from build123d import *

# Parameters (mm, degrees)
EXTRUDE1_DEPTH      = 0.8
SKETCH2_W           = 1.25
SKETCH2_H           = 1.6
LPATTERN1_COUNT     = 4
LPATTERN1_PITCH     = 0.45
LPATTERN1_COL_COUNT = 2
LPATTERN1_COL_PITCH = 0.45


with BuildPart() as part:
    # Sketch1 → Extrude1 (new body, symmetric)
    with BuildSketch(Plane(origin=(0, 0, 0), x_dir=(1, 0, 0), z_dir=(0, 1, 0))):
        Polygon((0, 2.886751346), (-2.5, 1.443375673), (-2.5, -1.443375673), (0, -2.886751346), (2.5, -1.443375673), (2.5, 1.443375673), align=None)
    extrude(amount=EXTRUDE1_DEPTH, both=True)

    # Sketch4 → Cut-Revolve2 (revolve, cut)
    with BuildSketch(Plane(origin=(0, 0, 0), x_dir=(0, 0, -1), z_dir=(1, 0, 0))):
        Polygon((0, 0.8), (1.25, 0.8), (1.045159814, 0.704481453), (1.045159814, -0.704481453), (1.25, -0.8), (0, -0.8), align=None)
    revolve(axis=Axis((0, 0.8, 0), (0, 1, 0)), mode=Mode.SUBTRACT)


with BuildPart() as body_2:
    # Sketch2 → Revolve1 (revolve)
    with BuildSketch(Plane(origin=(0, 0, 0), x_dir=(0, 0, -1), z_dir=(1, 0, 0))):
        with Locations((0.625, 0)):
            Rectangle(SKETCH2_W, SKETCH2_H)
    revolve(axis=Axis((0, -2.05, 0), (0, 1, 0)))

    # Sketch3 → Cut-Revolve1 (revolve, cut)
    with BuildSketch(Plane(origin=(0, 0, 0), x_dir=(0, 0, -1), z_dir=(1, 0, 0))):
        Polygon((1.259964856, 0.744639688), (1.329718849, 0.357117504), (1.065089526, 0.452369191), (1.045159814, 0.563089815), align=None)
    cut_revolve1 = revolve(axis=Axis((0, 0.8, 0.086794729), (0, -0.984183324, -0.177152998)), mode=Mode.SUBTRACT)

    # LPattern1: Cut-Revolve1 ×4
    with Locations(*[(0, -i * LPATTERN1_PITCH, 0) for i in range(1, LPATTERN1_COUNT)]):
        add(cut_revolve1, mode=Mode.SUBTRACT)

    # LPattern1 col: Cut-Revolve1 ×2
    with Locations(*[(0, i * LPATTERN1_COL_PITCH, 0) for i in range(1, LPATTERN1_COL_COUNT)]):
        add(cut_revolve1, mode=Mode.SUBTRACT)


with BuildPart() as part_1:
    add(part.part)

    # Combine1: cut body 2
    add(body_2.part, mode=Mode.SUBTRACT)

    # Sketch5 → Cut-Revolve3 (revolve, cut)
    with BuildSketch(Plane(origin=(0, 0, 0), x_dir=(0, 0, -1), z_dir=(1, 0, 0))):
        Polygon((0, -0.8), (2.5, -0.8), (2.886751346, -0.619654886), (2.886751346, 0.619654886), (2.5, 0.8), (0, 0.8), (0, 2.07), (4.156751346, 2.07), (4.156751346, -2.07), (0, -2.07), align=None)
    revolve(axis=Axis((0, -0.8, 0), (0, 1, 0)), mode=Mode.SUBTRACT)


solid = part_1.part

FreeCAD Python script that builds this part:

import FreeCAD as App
import Part
import Sketcher
from FreeCAD import Vector
Q = App.Units.Quantity

doc = App.newDocument("Part")
params = doc.addObject("Spreadsheet::Sheet", "Params")
for row, (alias, value) in enumerate([
    ("pad1_length", "1.6 mm"),
    ("sketch2_width", "1.6 mm"),
    ("sketch2_height", "1.25 mm"),
    ("groove_angle", "360 deg"),
    ("sketch3_width", "1.6 mm"),
    ("sketch3_height", "1.25 mm"),
    ("revolution_angle", "360 deg"),
    ("groove2_angle", "360 deg"),
    ("linearpattern_pitch", "0.45 mm"),
    ("linearpattern2_pitch", "0.45 mm"),
    ("sketch5_height", "2.5 mm"),
    ("sketch5_width", "1.27 mm"),
    ("sketch5_width2", "4.14 mm"),
    ("groove3_angle", "360 deg"),
], start=1):
    params.set(f"A{row}", alias)
    params.set(f"B{row}", "=" + value)
    params.setAlias(f"B{row}", alias)

body = doc.addObject("PartDesign::Body", "Body")

# Sketch on XZ plane
sketch1 = body.newObject("Sketcher::SketchObject", "Sketch")
sketch1.AttachmentSupport = (doc.getObject("XZ_Plane"), [""])
sketch1.MapMode = "FlatFace"
sketch1.addGeometry([
    Part.LineSegment(Vector(0, -2.886751, 0), Vector(-2.5, -1.443376, 0)),  # 0
    Part.LineSegment(Vector(-2.5, -1.443376, 0), Vector(-2.5, 1.443376, 0)),  # 1
    Part.LineSegment(Vector(-2.5, 1.443376, 0), Vector(0, 2.886751, 0)),  # 2
    Part.LineSegment(Vector(0, 2.886751, 0), Vector(2.5, 1.443376, 0)),  # 3
    Part.LineSegment(Vector(2.5, 1.443376, 0), Vector(2.5, -1.443376, 0)),  # 4
    Part.LineSegment(Vector(2.5, -1.443376, 0), Vector(0, -2.886751, 0)),  # 5
], False)
sketch1.addConstraint([
    Sketcher.Constraint("Coincident", 0, 2, 1, 1),
    Sketcher.Constraint("Coincident", 1, 2, 2, 1),
    Sketcher.Constraint("Coincident", 2, 2, 3, 1),
    Sketcher.Constraint("Coincident", 3, 2, 4, 1),
    Sketcher.Constraint("Coincident", 4, 2, 5, 1),
    Sketcher.Constraint("Coincident", 5, 2, 0, 1),
    Sketcher.Constraint("Vertical", 1),
    Sketcher.Constraint("Vertical", 4),
    Sketcher.Constraint("Symmetric", 0, 2, 3, 2, -1, 1),
    Sketcher.Constraint("Symmetric", 2, 2, 5, 2, -1, 1),
    Sketcher.Constraint("PointOnObject", 2, 2, -2),
    Sketcher.Constraint("Parallel", 2, 5),
    Sketcher.Constraint("Horizontal", 1, 2, 3, 2),
    Sketcher.Constraint("Angle", 0, Q("150 deg")),
    Sketcher.Constraint("DistanceX", 1, 2, 3, 2, Q("5 mm")),
    Sketcher.Constraint("DistanceY", 1, 1, 1, 2, Q("2.886751 mm")),
])
pad1 = body.newObject("PartDesign::Pad", "Pad")
pad1.Profile = sketch1
pad1.setExpression("Length", "Params.pad1_length")
pad1.Midplane = True

# Sketch on YZ plane
sketch2 = body.newObject("Sketcher::SketchObject", "Sketch001")
sketch2.AttachmentSupport = (doc.getObject("YZ_Plane"), [""])
sketch2.MapMode = "FlatFace"
sketch2.addGeometry([
    Part.LineSegment(Vector(0.8, -1.25, 0), Vector(0.8, 0, 0)),  # 0
    Part.LineSegment(Vector(0.8, 0, 0), Vector(-0.8, 0, 0)),  # 1
    Part.LineSegment(Vector(-0.8, 0, 0), Vector(-0.8, -1.25, 0)),  # 2
    Part.LineSegment(Vector(-0.8, -1.25, 0), Vector(-0.704481, -1.04516, 0)),  # 3
    Part.LineSegment(Vector(-0.704481, -1.04516, 0), Vector(0.704481, -1.04516, 0)),  # 4
    Part.LineSegment(Vector(0.704481, -1.04516, 0), Vector(0.8, -1.25, 0)),  # 5
], False)
sketch2.addConstraint([
    Sketcher.Constraint("Coincident", 0, 2, 1, 1),
    Sketcher.Constraint("Coincident", 1, 2, 2, 1),
    Sketcher.Constraint("Coincident", 2, 2, 3, 1),
    Sketcher.Constraint("Coincident", 3, 2, 4, 1),
    Sketcher.Constraint("Coincident", 4, 2, 5, 1),
    Sketcher.Constraint("Coincident", 5, 2, 0, 1),
    Sketcher.Constraint("Vertical", 0),
    Sketcher.Constraint("Horizontal", 1),
    Sketcher.Constraint("Vertical", 2),
    Sketcher.Constraint("Horizontal", 4),
    Sketcher.Constraint("Symmetric", 0, 2, 1, 2, -1, 1),
    Sketcher.Constraint("Horizontal", 2, 2, 5, 2),
    Sketcher.Constraint("Equal", 3, 5),
    Sketcher.Constraint("Angle", 3, Q("65 deg")),
    Sketcher.Constraint("DistanceX", 1, 2, 1, 1, Q("1.6 mm")),
    Sketcher.Constraint("DistanceY", 0, 1, 0, 2, Q("1.25 mm")),
    Sketcher.Constraint("DistanceX", 4, 1, 4, 2, Q("1.408963 mm")),
])
sketch2.setExpression("Constraints[14]", "Params.sketch2_width")
sketch2.setExpression("Constraints[15]", "Params.sketch2_height")
groove = body.newObject("PartDesign::Groove", "Groove")
groove.Profile = sketch2
groove.ReferenceAxis = (sketch2, ["H_Axis"])
groove.setExpression("Angle", "Params.groove_angle")
body2 = doc.addObject("PartDesign::Body", "Body001")

# Sketch on YZ plane
sketch3 = body2.newObject("Sketcher::SketchObject", "Sketch002")
sketch3.AttachmentSupport = (doc.getObject("YZ_Plane001"), [""])
sketch3.MapMode = "FlatFace"
sketch3.addGeometry([
    Part.LineSegment(Vector(0.8, 0, 0), Vector(-0.8, 0, 0)),
    Part.LineSegment(Vector(-0.8, 0, 0), Vector(-0.8, -1.25, 0)),
    Part.LineSegment(Vector(-0.8, -1.25, 0), Vector(0.8, -1.25, 0)),
    Part.LineSegment(Vector(0.8, -1.25, 0), Vector(0.8, 0, 0)),
], False)
sketch3.addConstraint([
    Sketcher.Constraint("Coincident", 0, 2, 1, 1),
    Sketcher.Constraint("Coincident", 1, 2, 2, 1),
    Sketcher.Constraint("Coincident", 2, 2, 3, 1),
    Sketcher.Constraint("Coincident", 3, 2, 0, 1),
    Sketcher.Constraint("Horizontal", 0),
    Sketcher.Constraint("Vertical", 1),
    Sketcher.Constraint("Horizontal", 2),
    Sketcher.Constraint("Vertical", 3),
    Sketcher.Constraint("Symmetric", 0, 2, 3, 2, -1, 1),
    Sketcher.Constraint("DistanceX", 0, 2, 0, 1, Q("1.6 mm")),
    Sketcher.Constraint("DistanceY", 1, 2, 1, 1, Q("1.25 mm")),
])
sketch3.setExpression("Constraints[9]", "Params.sketch3_width")
sketch3.setExpression("Constraints[10]", "Params.sketch3_height")
revolution = body2.newObject("PartDesign::Revolution", "Revolution")
revolution.Profile = sketch3
revolution.ReferenceAxis = (sketch3, ["H_Axis"])
revolution.setExpression("Angle", "Params.revolution_angle")

# Sketch on YZ plane
sketch4 = body2.newObject("Sketcher::SketchObject", "Sketch003")
sketch4.AttachmentSupport = (doc.getObject("YZ_Plane001"), [""])
sketch4.MapMode = "FlatFace"
sketch4.addGeometry([
    Part.LineSegment(Vector(0.357118, -1.329719, 0), Vector(0.74464, -1.259965, 0)),
    Part.LineSegment(Vector(0.74464, -1.259965, 0), Vector(0.56309, -1.04516, 0)),
    Part.LineSegment(Vector(0.56309, -1.04516, 0), Vector(0.452369, -1.06509, 0)),
    Part.LineSegment(Vector(0.452369, -1.06509, 0), Vector(0.357118, -1.329719, 0)),
], False)
sketch4.addGeometry(Part.LineSegment(Vector(0.511568, 0.034877, 0), Vector(0.124046, -0.034877, 0)), True)  # axis
sketch4.addConstraint([
    Sketcher.Constraint("Coincident", 0, 2, 1, 1),
    Sketcher.Constraint("Coincident", 1, 2, 2, 1),
    Sketcher.Constraint("Coincident", 2, 2, 3, 1),
    Sketcher.Constraint("Coincident", 3, 2, 0, 1),
    Sketcher.Constraint("Parallel", 0, 2),
    Sketcher.Constraint("Parallel", 2, 4),
    Sketcher.Constraint("Equal", 1, 3),
    Sketcher.Constraint("Equal", 0, 4),
    Sketcher.Constraint("Distance", 2, Q("0.1125 mm")),
    Sketcher.Constraint("DistanceX", 2, 2, 4, 1, Q("0.059199 mm")),
    Sketcher.Constraint("Distance", 0, Q("0.39375 mm")),
    Sketcher.Constraint("Distance", 1, Q("0.28125 mm")),
    Sketcher.Constraint("DistanceX", -1, 1, 0, 2, Q("0.74464 mm")),
    Sketcher.Constraint("DistanceX", -1, 1, 1, 2, Q("0.56309 mm")),
    Sketcher.Constraint("DistanceY", 1, 2, -1, 1, Q("1.04516 mm")),
    Sketcher.Constraint("DistanceY", 0, 2, 4, 1, Q("1.294842 mm")),
])
groove2 = body2.newObject("PartDesign::Groove", "Groove001")
groove2.Profile = sketch4
groove2.ReferenceAxis = (sketch4, ["Axis0"])
groove2.setExpression("Angle", "Params.groove2_angle")
doc.recompute()

linearpattern = body2.newObject("PartDesign::LinearPattern", "LinearPattern")
linearpattern.Originals = [groove2]
linearpattern.Direction = (doc.getObject("Y_Axis001"), [""])
linearpattern.Mode = "offset"
linearpattern.setExpression("Offset", "Params.linearpattern_pitch")
linearpattern.Occurrences = 4
linearpattern.Reversed = True
body2.Tip = linearpattern
doc.recompute()

linearpattern2 = body2.newObject("PartDesign::LinearPattern", "LinearPattern001")
linearpattern2.Originals = [groove2]
linearpattern2.Direction = (doc.getObject("Y_Axis001"), [""])
linearpattern2.Mode = "offset"
linearpattern2.setExpression("Offset", "Params.linearpattern2_pitch")
linearpattern2.Occurrences = 2
body2.Tip = linearpattern2
doc.recompute()

boolean = body.newObject("PartDesign::Boolean", "Boolean")
boolean.Type = "Cut"
boolean.addObjects([body2])

# Sketch on YZ plane
sketch5 = body.newObject("Sketcher::SketchObject", "Sketch004")
sketch5.AttachmentSupport = (doc.getObject("YZ_Plane"), [""])
sketch5.MapMode = "FlatFace"
sketch5.addGeometry([
    Part.LineSegment(Vector(-0.8, -2.5, 0), Vector(-0.8, 0, 0)),  # 0
    Part.LineSegment(Vector(-0.8, 0, 0), Vector(-2.07, 0, 0)),  # 1
    Part.LineSegment(Vector(-2.07, 0, 0), Vector(-2.07, -4.156751, 0)),  # 2
    Part.LineSegment(Vector(-2.07, -4.156751, 0), Vector(2.07, -4.156751, 0)),  # 3
    Part.LineSegment(Vector(2.07, -4.156751, 0), Vector(2.07, 0, 0)),  # 4
    Part.LineSegment(Vector(2.07, 0, 0), Vector(0.8, 0, 0)),  # 5
    Part.LineSegment(Vector(0.8, 0, 0), Vector(0.8, -2.5, 0)),  # 6
    Part.LineSegment(Vector(0.8, -2.5, 0), Vector(0.619655, -2.886751, 0)),  # 7
    Part.LineSegment(Vector(0.619655, -2.886751, 0), Vector(-0.619655, -2.886751, 0)),  # 8
    Part.LineSegment(Vector(-0.619655, -2.886751, 0), Vector(-0.8, -2.5, 0)),  # 9
], False)
sketch5.addConstraint([
    Sketcher.Constraint("Coincident", 0, 2, 1, 1),
    Sketcher.Constraint("Coincident", 1, 2, 2, 1),
    Sketcher.Constraint("Coincident", 2, 2, 3, 1),
    Sketcher.Constraint("Coincident", 3, 2, 4, 1),
    Sketcher.Constraint("Coincident", 4, 2, 5, 1),
    Sketcher.Constraint("Coincident", 5, 2, 6, 1),
    Sketcher.Constraint("Coincident", 6, 2, 7, 1),
    Sketcher.Constraint("Coincident", 7, 2, 8, 1),
    Sketcher.Constraint("Coincident", 8, 2, 9, 1),
    Sketcher.Constraint("Coincident", 9, 2, 0, 1),
    Sketcher.Constraint("Vertical", 0),
    Sketcher.Constraint("Horizontal", 1),
    Sketcher.Constraint("Vertical", 2),
    Sketcher.Constraint("Horizontal", 3),
    Sketcher.Constraint("Vertical", 4),
    Sketcher.Constraint("Horizontal", 5),
    Sketcher.Constraint("Vertical", 6),
    Sketcher.Constraint("Horizontal", 8),
    Sketcher.Constraint("Symmetric", 1, 2, 4, 2, -1, 1),
    Sketcher.Constraint("Symmetric", 0, 2, 5, 2, -2),
    Sketcher.Constraint("Horizontal", 6, 2, 9, 2),
    Sketcher.Constraint("Equal", 7, 9),
    Sketcher.Constraint("Angle", 7, Q("-115 deg")),
    Sketcher.Constraint("DistanceY", 0, 1, 0, 2, Q("2.5 mm")),
    Sketcher.Constraint("DistanceX", 1, 2, 1, 1, Q("1.27 mm")),
    Sketcher.Constraint("DistanceX", 3, 1, 3, 2, Q("4.14 mm")),
    Sketcher.Constraint("DistanceY", 3, 2, 7, 2, Q("1.27 mm")),
    Sketcher.Constraint("DistanceX", 8, 2, 8, 1, Q("1.23931 mm")),
])
sketch5.setExpression("Constraints[23]", "Params.sketch5_height")
sketch5.setExpression("Constraints[24]", "Params.sketch5_width")
sketch5.setExpression("Constraints[25]", "Params.sketch5_width2")
groove3 = body.newObject("PartDesign::Groove", "Groove002")
groove3.Profile = sketch5
groove3.ReferenceAxis = (sketch5, ["H_Axis"])
groove3.setExpression("Angle", "Params.groove3_angle")

doc.recompute()
